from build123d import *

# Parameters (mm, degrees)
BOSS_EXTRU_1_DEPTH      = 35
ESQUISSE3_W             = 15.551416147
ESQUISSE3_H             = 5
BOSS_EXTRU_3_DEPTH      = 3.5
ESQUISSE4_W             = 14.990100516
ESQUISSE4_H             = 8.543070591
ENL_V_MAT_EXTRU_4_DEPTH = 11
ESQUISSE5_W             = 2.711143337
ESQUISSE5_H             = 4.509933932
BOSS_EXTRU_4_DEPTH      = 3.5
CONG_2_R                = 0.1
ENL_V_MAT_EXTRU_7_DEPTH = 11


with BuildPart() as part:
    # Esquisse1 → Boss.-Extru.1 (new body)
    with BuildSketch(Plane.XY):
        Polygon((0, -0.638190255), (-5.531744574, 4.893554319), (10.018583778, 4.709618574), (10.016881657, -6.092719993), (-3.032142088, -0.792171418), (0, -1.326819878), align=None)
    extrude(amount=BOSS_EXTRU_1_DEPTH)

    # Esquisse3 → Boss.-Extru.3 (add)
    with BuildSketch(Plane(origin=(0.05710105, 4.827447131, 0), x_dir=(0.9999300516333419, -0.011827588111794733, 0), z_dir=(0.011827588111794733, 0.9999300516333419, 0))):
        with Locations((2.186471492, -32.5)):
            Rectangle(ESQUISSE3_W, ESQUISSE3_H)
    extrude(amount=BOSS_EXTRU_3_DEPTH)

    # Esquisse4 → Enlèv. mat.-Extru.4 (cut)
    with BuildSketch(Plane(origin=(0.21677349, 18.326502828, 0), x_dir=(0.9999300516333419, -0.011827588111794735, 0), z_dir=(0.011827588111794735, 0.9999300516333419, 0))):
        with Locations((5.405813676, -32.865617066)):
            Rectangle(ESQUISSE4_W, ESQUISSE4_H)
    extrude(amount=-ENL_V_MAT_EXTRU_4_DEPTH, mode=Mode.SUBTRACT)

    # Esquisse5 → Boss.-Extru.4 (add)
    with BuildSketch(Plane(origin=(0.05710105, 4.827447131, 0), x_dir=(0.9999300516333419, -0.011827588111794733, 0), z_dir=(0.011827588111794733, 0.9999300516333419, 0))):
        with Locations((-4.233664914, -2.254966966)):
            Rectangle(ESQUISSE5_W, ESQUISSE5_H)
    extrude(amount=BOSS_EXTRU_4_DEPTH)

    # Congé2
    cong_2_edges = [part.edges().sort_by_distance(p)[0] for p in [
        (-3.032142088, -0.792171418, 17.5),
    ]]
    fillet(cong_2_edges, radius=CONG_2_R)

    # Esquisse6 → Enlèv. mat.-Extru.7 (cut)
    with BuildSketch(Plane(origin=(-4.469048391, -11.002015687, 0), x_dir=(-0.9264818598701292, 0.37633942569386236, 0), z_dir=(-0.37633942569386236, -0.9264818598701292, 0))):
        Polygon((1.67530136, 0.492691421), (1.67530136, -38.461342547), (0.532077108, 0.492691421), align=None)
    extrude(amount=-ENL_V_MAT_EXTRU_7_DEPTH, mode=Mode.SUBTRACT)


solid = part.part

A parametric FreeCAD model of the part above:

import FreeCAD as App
import Part
import Sketcher
Q = App.Units.Quantity


def edges_at(feature, points):
    """Names of the edges that pass closest to the given points."""
    edges = feature.Shape.Edges
    near = lambda p: min(range(len(edges)), key=lambda i: edges[i].distToShape(Part.Vertex(*p))[0])
    return sorted({f"Edge{near(p) + 1}" for p in points})


def add_polygon(sketch, points):
    """Adds a closed chain of lines whose ends are joined by coincident constraints."""
    first, n = sketch.GeometryCount, len(points)
    for a, b in zip(points, points[1:] + points[:1]):
        sketch.addGeometry(Part.LineSegment(App.Vector(*a, 0), App.Vector(*b, 0)), False)
    for i in range(n):
        sketch.addConstraint(Sketcher.Constraint("Coincident", first + i, 2, first + (i + 1) % n, 1))

doc = App.newDocument("Part")
body = doc.addObject("PartDesign::Body", "Body")

sketch1 = body.newObject("Sketcher::SketchObject", "Sketch")
sketch1.AttachmentSupport = (doc.getObject("XY_Plane"), [""])
sketch1.MapMode = "FlatFace"
add_polygon(sketch1, [(-5.5, 4.9), (0, -0.6), (0, -1.3), (-3, -0.8), (10, -6.1), (10, 4.7)])
sketch1.addConstraint([
    Sketcher.Constraint("Vertical", 1),
    Sketcher.Constraint("PointOnObject", 0, 2, -2),
    Sketcher.Constraint("Angle", 0, Q("-45 deg")),
    Sketcher.Constraint("Angle", 2, Q("170 deg")),
    Sketcher.Constraint("DistanceY", 1, 2, 1, 1, Q("0.68863 mm")),
    Sketcher.Constraint("DistanceY", 3, 2, 1, 2, Q("4.7659 mm")),
    Sketcher.Constraint("Distance", 0, Q("7.823068 mm")),
    Sketcher.Constraint("Distance", 3, Q("14.084489 mm")),
    Sketcher.Constraint("Distance", 4, Q("10.802339 mm")),
    Sketcher.Constraint("DistanceY", 0, 2, -1, 1, Q("0.63819 mm")),
    Sketcher.Constraint("DistanceY", 2, 2, -1, 1, Q("0.792171 mm")),
    Sketcher.Constraint("DistanceX", 5, 2, 4, 2, Q("15.550328 mm")),
])
pad1 = body.newObject("PartDesign::Pad", "Pad")
pad1.Profile = sketch1
pad1.Length = 35

sketch2 = body.newObject("Sketcher::SketchObject", "Sketch001")
sketch2.Placement = App.Placement(App.Vector(0.057101, 4.827447, 0), App.Rotation(App.Vector(0.999930052, -0.011827588, 0), App.Vector(0, 0, -1.000000001), App.Vector(0.011827588, 0.999930052, 0), "ZXY"))
add_polygon(sketch2, [(-6, -30), (-6, -35), (10, -35), (10, -30)])
sketch2.addConstraint([
    Sketcher.Constraint("Vertical", 0),
    Sketcher.Constraint("Horizontal", 1),
    Sketcher.Constraint("Vertical", 2),
    Sketcher.Constraint("Horizontal", 3),
    Sketcher.Constraint("DistanceY", 0, 2, 0, 1, Q("5 mm")),
    Sketcher.Constraint("DistanceY", 0, 2, -1, 1, Q("35 mm")),
    Sketcher.Constraint("DistanceX", 1, 1, 1, 2, Q("15.551416 mm")),
    Sketcher.Constraint("DistanceX", -1, 1, 1, 2, Q("9.96218 mm")),
])
pad2 = body.newObject("PartDesign::Pad", "Pad001")
pad2.Profile = sketch2
pad2.Length = 3.5

sketch3 = body.newObject("Sketcher::SketchObject", "Sketch002")
sketch3.Placement = App.Placement(App.Vector(0.216773, 18.326503, 0), App.Rotation(App.Vector(0.999930052, -0.011827588, 0), App.Vector(0, 0, -1.000000001), App.Vector(0.011827588, 0.999930052, 0), "ZXY"))
add_polygon(sketch3, [(-2, -29), (-2, -37), (13, -37), (13, -29)])
sketch3.addConstraint([
    Sketcher.Constraint("Vertical", 0),
    Sketcher.Constraint("Horizontal", 1),
    Sketcher.Constraint("Vertical", 2),
    Sketcher.Constraint("Horizontal", 3),
    Sketcher.Constraint("DistanceX", 1, 1, 1, 2, Q("14.990101 mm")),
    Sketcher.Constraint("DistanceY", 0, 2, 0, 1, Q("8.543071 mm")),
    Sketcher.Constraint("DistanceY", 2, 2, -1, 1, Q("28.594082 mm")),
    Sketcher.Constraint("DistanceX", 0, 2, -1, 1, Q("2.089237 mm")),
])
pocket1 = body.newObject("PartDesign::Pocket", "Pocket")
pocket1.Profile = sketch3
pocket1.Length = 11

sketch4 = body.newObject("Sketcher::SketchObject", "Sketch003")
sketch4.Placement = App.Placement(App.Vector(0.057101, 4.827447, 0), App.Rotation(App.Vector(0.999930052, -0.011827588, 0), App.Vector(0, 0, -1.000000001), App.Vector(0.011827588, 0.999930052, 0), "ZXY"))
add_polygon(sketch4, [(-5.6, 0), (-5.6, -4.5), (-2.9, -4.5), (-2.9, 0)])
sketch4.addConstraint([
    Sketcher.Constraint("Vertical", 0),
    Sketcher.Constraint("Horizontal", 1),
    Sketcher.Constraint("Vertical", 2),
    Sketcher.Constraint("Horizontal", 3),
    Sketcher.Constraint("PointOnObject", 2, 2, -1),
    Sketcher.Constraint("DistanceX", 1, 1, 1, 2, Q("2.711143 mm")),
    Sketcher.Constraint("DistanceY", 0, 2, 0, 1, Q("4.509934 mm")),
    Sketcher.Constraint("DistanceX", 0, 2, -1, 1, Q("5.589237 mm")),
])
pad3 = body.newObject("PartDesign::Pad", "Pad002")
pad3.Profile = sketch4
pad3.Length = 3.5
doc.recompute()

fillet = body.newObject("PartDesign::Fillet", "Fillet")
fillet.Base = (pad3, edges_at(pad3, [(-3.032, -0.792, 17.5)]))
fillet.Radius = 0.1

sketch5 = body.newObject("Sketcher::SketchObject", "Sketch004")
sketch5.Placement = App.Placement(App.Vector(-4.469048, -11.002016, 0), App.Rotation(App.Vector(-0.92648186, 0.376339426, 0), App.Vector(0, 0, -1), App.Vector(-0.376339426, -0.92648186, 0), "ZXY"))
add_polygon(sketch5, [(1.7, -38.5), (1.7, 0.5), (0.5, 0.5)])
sketch5.addConstraint([
    Sketcher.Constraint("Vertical", 0),
    Sketcher.Constraint("Horizontal", 1),
    Sketcher.Constraint("DistanceX", -1, 1, 0, 2, Q("1.675301 mm")),
    Sketcher.Constraint("DistanceX", 1, 2, 1, 1, Q("1.143224 mm")),
    Sketcher.Constraint("DistanceY", 0, 1, 0, 2, Q("38.954034 mm")),
    Sketcher.Constraint("DistanceY", -1, 1, 0, 2, Q("0.492691 mm")),
])
pocket2 = body.newObject("PartDesign::Pocket", "Pocket001")
pocket2.Profile = sketch5
pocket2.Length = 11

doc.recompute()
